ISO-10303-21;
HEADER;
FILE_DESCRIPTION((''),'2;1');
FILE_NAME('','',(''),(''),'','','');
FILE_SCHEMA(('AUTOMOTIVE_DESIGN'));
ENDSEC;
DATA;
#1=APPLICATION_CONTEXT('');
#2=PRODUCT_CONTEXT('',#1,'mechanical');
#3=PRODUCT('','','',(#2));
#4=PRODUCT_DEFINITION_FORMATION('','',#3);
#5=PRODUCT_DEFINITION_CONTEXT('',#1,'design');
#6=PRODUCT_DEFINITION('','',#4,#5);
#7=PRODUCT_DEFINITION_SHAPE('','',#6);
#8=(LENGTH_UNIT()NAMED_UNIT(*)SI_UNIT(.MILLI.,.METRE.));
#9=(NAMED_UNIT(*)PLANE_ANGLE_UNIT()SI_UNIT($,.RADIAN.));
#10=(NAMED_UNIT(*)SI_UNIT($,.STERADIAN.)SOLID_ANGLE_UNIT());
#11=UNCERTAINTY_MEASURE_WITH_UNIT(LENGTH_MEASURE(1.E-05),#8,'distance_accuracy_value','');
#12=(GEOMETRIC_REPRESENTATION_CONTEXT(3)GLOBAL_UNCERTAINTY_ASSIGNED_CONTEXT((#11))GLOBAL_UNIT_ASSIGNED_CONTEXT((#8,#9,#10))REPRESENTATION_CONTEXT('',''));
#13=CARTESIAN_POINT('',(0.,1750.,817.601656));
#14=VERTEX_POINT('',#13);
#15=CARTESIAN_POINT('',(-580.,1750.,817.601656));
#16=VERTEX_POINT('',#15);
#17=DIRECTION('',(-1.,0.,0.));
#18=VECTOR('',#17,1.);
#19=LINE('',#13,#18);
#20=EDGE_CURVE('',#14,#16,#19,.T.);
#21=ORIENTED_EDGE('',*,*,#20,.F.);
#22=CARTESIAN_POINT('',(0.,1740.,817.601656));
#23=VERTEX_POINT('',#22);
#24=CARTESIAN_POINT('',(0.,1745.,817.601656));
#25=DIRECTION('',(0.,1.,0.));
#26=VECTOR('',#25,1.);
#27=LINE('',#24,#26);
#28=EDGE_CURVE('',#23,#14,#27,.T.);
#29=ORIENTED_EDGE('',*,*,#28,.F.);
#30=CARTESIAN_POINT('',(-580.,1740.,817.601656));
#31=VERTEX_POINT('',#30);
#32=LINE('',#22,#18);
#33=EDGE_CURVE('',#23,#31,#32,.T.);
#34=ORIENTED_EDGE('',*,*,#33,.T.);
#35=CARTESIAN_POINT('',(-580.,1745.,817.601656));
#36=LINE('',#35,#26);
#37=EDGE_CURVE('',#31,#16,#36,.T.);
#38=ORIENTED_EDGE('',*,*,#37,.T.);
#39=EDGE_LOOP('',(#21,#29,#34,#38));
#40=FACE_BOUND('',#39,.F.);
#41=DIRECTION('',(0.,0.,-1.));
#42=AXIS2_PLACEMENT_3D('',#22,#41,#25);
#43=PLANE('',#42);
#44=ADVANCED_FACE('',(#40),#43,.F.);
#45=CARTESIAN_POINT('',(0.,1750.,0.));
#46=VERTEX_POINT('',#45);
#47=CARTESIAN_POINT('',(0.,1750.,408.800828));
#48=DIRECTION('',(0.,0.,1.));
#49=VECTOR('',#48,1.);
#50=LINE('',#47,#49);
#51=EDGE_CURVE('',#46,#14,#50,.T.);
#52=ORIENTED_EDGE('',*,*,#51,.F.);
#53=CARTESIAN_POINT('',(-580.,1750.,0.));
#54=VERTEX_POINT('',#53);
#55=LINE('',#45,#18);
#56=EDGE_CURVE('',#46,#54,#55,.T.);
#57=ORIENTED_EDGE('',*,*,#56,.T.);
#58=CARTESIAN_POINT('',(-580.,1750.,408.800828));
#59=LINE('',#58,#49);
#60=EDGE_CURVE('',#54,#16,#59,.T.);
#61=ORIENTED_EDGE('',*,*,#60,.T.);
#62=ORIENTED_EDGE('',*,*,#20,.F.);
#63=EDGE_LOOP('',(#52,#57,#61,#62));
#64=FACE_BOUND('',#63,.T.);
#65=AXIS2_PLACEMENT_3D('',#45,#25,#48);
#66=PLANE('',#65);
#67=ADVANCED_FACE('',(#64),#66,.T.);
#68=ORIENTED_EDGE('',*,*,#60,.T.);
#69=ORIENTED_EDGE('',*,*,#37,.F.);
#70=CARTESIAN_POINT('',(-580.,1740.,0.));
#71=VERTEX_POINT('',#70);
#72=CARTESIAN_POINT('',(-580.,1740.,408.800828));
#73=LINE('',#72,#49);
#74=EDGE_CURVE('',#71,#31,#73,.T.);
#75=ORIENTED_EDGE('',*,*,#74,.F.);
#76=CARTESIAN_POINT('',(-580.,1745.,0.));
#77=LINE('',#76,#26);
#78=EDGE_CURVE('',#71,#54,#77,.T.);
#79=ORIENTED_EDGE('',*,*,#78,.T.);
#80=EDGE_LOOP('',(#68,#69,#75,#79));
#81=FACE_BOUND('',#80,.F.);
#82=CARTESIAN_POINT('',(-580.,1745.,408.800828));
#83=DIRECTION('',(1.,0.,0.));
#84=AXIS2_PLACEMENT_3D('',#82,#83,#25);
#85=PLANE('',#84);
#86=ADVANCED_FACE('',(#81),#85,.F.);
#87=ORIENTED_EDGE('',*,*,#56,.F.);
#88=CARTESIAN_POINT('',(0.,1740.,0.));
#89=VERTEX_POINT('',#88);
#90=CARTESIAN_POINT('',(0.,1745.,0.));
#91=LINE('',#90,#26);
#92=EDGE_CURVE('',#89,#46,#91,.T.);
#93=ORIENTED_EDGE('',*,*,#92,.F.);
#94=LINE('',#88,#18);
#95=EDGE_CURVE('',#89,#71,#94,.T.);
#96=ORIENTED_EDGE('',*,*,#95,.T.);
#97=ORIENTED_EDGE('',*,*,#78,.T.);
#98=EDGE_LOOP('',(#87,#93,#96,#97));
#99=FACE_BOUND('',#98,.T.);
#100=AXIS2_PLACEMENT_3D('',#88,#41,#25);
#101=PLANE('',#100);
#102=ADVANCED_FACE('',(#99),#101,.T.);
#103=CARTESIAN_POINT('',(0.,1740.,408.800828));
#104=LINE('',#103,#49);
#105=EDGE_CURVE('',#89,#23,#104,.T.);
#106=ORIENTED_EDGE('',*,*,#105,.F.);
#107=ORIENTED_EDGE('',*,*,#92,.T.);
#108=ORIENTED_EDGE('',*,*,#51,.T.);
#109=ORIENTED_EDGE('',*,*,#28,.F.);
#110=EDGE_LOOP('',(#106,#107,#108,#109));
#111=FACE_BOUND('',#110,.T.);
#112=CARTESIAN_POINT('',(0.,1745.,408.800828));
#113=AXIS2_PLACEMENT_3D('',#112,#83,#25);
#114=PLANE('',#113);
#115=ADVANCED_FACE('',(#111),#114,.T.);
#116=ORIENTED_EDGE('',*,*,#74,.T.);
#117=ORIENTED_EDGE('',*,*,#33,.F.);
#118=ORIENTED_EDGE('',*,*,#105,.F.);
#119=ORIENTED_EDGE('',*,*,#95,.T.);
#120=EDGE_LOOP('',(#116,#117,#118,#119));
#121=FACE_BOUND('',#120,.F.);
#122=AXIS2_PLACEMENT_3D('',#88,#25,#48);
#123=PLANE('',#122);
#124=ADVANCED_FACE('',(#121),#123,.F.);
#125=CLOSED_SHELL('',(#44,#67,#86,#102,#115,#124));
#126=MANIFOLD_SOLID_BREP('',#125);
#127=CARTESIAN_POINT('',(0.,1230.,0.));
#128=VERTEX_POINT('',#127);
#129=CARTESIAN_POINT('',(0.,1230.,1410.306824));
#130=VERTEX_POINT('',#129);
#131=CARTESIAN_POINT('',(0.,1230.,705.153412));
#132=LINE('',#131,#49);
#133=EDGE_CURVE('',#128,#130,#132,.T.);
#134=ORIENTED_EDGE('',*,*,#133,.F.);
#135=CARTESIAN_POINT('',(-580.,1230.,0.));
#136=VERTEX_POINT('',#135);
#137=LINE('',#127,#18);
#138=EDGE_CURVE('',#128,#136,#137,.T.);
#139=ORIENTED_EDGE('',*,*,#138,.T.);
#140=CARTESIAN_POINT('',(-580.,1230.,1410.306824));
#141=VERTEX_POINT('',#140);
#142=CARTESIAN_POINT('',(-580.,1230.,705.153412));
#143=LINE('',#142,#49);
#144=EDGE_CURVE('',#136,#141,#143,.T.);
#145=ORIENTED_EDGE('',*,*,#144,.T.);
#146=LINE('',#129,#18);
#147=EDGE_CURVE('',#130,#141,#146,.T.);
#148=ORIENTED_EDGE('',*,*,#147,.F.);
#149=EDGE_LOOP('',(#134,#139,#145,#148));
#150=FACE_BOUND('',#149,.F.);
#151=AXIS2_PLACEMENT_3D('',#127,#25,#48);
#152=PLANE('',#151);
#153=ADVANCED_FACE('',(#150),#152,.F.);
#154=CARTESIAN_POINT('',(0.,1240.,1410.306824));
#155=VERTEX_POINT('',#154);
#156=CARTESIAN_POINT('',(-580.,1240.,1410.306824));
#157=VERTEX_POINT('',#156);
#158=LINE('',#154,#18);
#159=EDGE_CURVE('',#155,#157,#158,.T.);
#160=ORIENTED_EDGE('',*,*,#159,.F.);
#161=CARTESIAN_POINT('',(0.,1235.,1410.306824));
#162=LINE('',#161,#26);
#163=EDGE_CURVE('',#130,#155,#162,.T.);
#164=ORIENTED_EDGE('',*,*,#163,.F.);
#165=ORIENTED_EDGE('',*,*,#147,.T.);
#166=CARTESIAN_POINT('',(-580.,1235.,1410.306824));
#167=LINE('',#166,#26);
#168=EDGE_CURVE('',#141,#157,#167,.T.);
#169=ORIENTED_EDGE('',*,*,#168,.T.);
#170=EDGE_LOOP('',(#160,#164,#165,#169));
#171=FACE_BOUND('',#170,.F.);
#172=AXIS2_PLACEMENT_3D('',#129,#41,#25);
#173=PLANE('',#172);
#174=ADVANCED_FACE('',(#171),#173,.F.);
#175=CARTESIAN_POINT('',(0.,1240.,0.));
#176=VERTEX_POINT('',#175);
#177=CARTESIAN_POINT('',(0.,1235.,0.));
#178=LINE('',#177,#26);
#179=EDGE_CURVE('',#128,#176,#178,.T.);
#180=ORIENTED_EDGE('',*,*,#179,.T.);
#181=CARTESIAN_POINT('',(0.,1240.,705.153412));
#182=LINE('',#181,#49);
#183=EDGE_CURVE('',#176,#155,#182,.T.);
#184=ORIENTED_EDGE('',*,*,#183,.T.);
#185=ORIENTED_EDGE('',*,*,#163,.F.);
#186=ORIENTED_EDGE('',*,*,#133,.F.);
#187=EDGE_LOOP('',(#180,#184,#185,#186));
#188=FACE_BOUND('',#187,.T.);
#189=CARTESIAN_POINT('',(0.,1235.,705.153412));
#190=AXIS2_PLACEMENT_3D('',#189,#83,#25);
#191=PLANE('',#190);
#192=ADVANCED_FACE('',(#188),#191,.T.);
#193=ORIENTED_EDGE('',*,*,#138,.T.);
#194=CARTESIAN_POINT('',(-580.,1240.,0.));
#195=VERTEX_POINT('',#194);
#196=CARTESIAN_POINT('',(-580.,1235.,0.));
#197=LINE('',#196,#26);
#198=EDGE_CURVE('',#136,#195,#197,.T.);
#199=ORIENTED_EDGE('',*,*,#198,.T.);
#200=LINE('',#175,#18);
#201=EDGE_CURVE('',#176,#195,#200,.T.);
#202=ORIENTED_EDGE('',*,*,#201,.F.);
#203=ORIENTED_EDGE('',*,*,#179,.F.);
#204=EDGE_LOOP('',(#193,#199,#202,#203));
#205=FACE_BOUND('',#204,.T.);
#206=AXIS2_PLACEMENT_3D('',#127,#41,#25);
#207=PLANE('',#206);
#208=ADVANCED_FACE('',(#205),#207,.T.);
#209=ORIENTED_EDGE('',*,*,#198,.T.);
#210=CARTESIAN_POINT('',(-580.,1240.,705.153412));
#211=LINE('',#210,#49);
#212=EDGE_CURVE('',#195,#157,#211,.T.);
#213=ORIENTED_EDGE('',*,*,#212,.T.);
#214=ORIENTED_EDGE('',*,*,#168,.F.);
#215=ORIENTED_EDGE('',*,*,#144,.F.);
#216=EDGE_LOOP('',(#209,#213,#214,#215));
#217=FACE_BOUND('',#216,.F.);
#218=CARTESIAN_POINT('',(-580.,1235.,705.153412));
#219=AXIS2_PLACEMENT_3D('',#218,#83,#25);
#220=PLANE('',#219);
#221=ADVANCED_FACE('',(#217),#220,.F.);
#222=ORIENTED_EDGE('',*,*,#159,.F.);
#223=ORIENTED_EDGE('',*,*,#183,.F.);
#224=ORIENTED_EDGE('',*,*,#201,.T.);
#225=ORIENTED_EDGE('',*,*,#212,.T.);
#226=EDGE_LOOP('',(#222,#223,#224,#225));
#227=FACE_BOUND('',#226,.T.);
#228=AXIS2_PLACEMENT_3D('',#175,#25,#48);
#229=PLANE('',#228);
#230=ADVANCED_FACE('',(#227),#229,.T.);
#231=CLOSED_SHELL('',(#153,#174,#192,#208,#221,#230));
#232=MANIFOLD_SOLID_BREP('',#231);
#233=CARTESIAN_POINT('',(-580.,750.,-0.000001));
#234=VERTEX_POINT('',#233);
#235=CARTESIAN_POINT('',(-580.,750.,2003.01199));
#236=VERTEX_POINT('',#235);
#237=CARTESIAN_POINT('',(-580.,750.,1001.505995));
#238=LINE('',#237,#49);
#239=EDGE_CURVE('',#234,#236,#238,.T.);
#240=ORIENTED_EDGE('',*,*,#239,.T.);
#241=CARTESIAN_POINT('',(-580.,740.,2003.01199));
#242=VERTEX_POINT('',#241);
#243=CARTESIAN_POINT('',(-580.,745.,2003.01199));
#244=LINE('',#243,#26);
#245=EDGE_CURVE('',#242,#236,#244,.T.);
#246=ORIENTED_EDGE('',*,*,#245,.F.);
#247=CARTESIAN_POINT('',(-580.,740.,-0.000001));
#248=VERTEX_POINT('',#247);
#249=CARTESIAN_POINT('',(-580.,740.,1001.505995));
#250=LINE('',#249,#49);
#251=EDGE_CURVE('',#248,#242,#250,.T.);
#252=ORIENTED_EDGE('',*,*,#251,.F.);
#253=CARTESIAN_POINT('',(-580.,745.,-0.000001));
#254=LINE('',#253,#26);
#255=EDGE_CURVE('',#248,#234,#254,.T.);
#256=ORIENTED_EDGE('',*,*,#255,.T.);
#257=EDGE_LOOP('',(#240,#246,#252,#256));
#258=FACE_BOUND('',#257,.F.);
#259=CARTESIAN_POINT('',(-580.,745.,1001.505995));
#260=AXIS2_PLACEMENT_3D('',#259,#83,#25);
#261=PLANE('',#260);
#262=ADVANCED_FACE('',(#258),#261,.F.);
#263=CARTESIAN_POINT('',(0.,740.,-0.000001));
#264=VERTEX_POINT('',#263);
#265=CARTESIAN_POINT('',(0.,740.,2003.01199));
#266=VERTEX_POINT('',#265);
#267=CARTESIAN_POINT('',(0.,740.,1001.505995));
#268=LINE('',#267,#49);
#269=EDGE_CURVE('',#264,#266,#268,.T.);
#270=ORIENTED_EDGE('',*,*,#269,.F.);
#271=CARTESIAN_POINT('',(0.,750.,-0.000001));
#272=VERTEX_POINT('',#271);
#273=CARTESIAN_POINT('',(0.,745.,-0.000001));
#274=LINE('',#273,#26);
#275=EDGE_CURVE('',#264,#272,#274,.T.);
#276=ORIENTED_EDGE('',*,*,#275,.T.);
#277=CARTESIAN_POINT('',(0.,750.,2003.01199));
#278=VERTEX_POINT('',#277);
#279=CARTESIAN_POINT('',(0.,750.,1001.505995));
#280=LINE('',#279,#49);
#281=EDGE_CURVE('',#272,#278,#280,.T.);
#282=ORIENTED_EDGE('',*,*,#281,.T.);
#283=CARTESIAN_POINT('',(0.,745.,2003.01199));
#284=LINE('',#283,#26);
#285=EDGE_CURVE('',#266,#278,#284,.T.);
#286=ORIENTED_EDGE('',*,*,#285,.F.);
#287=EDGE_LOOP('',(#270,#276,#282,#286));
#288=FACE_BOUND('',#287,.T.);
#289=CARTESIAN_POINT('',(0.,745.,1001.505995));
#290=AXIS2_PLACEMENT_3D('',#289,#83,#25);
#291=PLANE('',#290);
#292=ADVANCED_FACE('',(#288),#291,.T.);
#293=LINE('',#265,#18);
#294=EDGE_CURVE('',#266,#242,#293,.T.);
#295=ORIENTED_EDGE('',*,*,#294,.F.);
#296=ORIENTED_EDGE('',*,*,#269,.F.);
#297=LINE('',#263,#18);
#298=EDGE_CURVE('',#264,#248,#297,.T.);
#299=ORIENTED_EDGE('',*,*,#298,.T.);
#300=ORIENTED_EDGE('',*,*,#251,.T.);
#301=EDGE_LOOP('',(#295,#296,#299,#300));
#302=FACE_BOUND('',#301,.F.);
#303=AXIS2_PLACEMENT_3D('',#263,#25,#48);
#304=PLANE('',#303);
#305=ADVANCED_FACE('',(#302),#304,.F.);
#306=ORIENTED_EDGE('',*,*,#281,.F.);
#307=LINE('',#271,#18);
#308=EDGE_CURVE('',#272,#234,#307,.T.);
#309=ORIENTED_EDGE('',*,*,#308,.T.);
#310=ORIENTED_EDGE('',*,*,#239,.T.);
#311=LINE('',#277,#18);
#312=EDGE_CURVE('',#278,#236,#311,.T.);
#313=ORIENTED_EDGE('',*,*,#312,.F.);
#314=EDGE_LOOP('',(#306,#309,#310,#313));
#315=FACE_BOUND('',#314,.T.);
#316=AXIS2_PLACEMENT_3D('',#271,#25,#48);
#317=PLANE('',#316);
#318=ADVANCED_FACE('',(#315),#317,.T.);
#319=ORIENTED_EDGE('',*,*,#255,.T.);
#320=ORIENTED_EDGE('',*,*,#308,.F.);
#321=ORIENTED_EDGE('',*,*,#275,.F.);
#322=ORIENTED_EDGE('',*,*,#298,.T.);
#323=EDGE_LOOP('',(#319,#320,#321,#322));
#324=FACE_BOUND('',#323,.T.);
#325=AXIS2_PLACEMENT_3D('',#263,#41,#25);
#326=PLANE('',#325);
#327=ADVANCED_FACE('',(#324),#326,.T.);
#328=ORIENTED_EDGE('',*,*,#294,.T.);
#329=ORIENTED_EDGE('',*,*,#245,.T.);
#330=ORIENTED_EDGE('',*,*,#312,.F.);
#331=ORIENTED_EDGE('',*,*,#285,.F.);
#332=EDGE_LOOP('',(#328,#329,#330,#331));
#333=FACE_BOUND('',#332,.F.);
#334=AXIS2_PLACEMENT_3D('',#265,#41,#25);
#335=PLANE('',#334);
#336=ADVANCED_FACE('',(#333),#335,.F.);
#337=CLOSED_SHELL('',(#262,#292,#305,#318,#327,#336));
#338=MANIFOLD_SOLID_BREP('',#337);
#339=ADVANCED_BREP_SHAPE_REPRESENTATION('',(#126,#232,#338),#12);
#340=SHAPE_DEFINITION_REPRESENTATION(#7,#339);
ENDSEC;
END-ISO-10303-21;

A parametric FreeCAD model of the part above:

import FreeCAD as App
import Part
import Sketcher

V = App.Vector
Q = App.Units.Quantity

doc = App.newDocument("Part")
body = doc.addObject("PartDesign::Body", "Body")
body.AllowCompound = True

# Sketch on YZ plane
sketch1 = body.newObject("Sketcher::SketchObject", "Sketch")
sketch1.AttachmentSupport = (doc.getObject("YZ_Plane"), [""])
sketch1.MapMode = "FlatFace"
sketch1.addGeometry([
    Part.LineSegment(V(740, 2003, 0), V(740, 0, 0)),  # 0
    Part.LineSegment(V(740, 0, 0), V(750, 0, 0)),  # 1
    Part.LineSegment(V(750, 0, 0), V(750, 2003, 0)),  # 2
    Part.LineSegment(V(750, 2003, 0), V(740, 2003, 0)),  # 3
    Part.LineSegment(V(1230, 1410, 0), V(1230, 0, 0)),  # 4
    Part.LineSegment(V(1230, 0, 0), V(1240, 0, 0)),  # 5
    Part.LineSegment(V(1240, 0, 0), V(1240, 1410, 0)),  # 6
    Part.LineSegment(V(1240, 1410, 0), V(1230, 1410, 0)),  # 7
    Part.LineSegment(V(1740, 818, 0), V(1740, 0, 0)),  # 8
    Part.LineSegment(V(1740, 0, 0), V(1750, 0, 0)),  # 9
    Part.LineSegment(V(1750, 0, 0), V(1750, 818, 0)),  # 10
    Part.LineSegment(V(1750, 818, 0), V(1740, 818, 0)),  # 11
], False)
sketch1.addConstraint([
    Sketcher.Constraint("Coincident", 0, 2, 1, 1),
    Sketcher.Constraint("Coincident", 1, 2, 2, 1),
    Sketcher.Constraint("Coincident", 2, 2, 3, 1),
    Sketcher.Constraint("Coincident", 3, 2, 0, 1),
    Sketcher.Constraint("Coincident", 4, 2, 5, 1),
    Sketcher.Constraint("Coincident", 5, 2, 6, 1),
    Sketcher.Constraint("Coincident", 6, 2, 7, 1),
    Sketcher.Constraint("Coincident", 7, 2, 4, 1),
    Sketcher.Constraint("Coincident", 8, 2, 9, 1),
    Sketcher.Constraint("Coincident", 9, 2, 10, 1),
    Sketcher.Constraint("Coincident", 10, 2, 11, 1),
    Sketcher.Constraint("Coincident", 11, 2, 8, 1),
    Sketcher.Constraint("Vertical", 0),
    Sketcher.Constraint("Horizontal", 1),
    Sketcher.Constraint("Vertical", 2),
    Sketcher.Constraint("Horizontal", 3),
    Sketcher.Constraint("Vertical", 4),
    Sketcher.Constraint("Horizontal", 5),
    Sketcher.Constraint("Vertical", 6),
    Sketcher.Constraint("Horizontal", 7),
    Sketcher.Constraint("Vertical", 8),
    Sketcher.Constraint("Horizontal", 9),
    Sketcher.Constraint("Vertical", 10),
    Sketcher.Constraint("Horizontal", 11),
    Sketcher.Constraint("PointOnObject", 0, 2, -1),
    Sketcher.Constraint("PointOnObject", 4, 2, -1),
    Sketcher.Constraint("PointOnObject", 8, 2, -1),
    Sketcher.Constraint("Equal", 3, 5),
    Sketcher.Constraint("Equal", 7, 9),
    Sketcher.Constraint("DistanceX", 1, 1, 1, 2, Q("10 mm")),
    Sketcher.Constraint("DistanceX", -1, 1, 0, 2, Q("740 mm")),
    Sketcher.Constraint("DistanceX", -1, 1, 4, 2, Q("1230 mm")),
    Sketcher.Constraint("DistanceX", -1, 1, 8, 2, Q("1740 mm")),
    Sketcher.Constraint("DistanceY", 0, 2, 0, 1, Q("2003.011991 mm")),
    Sketcher.Constraint("DistanceY", 4, 2, 4, 1, Q("1410.306824 mm")),
    Sketcher.Constraint("DistanceY", 8, 2, 8, 1, Q("817.601657 mm")),
])
pad1 = body.newObject("PartDesign::Pad", "Pad")
pad1.Profile = sketch1
pad1.Length = 580
pad1.Reversed = True

doc.recompute()
